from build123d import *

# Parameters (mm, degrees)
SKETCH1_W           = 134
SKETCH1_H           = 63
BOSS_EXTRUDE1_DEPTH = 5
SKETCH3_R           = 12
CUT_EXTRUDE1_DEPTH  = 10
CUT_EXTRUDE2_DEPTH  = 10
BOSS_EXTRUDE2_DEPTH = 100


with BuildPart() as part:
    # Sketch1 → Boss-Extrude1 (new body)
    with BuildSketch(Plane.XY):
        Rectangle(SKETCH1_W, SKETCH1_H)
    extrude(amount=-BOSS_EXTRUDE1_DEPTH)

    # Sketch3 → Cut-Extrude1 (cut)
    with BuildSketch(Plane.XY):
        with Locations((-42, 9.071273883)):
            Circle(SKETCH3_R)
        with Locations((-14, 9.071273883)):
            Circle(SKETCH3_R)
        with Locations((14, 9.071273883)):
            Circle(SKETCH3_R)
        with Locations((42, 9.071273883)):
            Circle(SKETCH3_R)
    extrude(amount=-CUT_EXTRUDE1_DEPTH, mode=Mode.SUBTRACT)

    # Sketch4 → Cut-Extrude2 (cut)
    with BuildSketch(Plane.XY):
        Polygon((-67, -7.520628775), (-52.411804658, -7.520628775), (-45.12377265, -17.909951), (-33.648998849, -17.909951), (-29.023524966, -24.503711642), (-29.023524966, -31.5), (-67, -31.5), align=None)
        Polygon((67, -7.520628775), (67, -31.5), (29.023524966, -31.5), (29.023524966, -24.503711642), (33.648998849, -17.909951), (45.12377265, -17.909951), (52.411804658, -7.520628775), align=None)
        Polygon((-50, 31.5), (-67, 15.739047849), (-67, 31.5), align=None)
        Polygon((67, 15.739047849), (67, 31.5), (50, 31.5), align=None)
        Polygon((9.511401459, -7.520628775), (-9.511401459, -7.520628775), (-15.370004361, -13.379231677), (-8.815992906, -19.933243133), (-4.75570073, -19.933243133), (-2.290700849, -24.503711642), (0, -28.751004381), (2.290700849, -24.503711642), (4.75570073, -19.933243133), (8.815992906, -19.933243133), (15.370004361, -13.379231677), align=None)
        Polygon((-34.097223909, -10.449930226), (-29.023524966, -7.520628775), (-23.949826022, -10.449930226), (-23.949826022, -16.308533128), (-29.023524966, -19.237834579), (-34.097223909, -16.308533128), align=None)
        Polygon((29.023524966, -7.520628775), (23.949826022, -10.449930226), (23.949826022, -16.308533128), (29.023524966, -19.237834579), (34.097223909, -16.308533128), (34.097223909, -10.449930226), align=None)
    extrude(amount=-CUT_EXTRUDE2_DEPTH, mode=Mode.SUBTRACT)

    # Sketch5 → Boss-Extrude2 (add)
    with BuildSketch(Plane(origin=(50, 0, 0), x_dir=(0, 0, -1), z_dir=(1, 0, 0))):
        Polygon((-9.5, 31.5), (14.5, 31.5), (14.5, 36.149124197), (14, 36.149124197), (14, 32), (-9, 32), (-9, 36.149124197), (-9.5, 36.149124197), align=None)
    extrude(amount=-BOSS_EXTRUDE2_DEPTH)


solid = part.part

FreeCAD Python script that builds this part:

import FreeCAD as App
import Part
import Sketcher

V = App.Vector
Q = App.Units.Quantity


def add_polygon(sketch, points):
    """Adds a closed chain of lines whose ends are joined by coincident constraints."""
    first, n = sketch.GeometryCount, len(points)
    for a, b in zip(points, points[1:] + points[:1]):
        sketch.addGeometry(Part.LineSegment(App.Vector(*a, 0), App.Vector(*b, 0)), False)
    for i in range(n):
        sketch.addConstraint(Sketcher.Constraint("Coincident", first + i, 2, first + (i + 1) % n, 1))

doc = App.newDocument("Part")
body = doc.addObject("PartDesign::Body", "Body")

sketch1 = body.newObject("Sketcher::SketchObject", "Sketch")
sketch1.AttachmentSupport = (doc.getObject("XY_Plane"), [""])
sketch1.MapMode = "FlatFace"
add_polygon(sketch1, [(-67, 32), (-67, -32), (67, -32), (67, 32)])
sketch1.addConstraint([
    Sketcher.Constraint("Vertical", 0),
    Sketcher.Constraint("Horizontal", 1),
    Sketcher.Constraint("Vertical", 2),
    Sketcher.Constraint("Horizontal", 3),
    Sketcher.Constraint("Symmetric", 0, 2, 2, 2, -1, 1),
    Sketcher.Constraint("DistanceX", 1, 1, 1, 2, 134.0),
    Sketcher.Constraint("DistanceY", 0, 2, 0, 1, 63.0),
])
pad1 = body.newObject("PartDesign::Pad", "Pad")
pad1.Profile = sketch1
pad1.Length = 5
pad1.Reversed = True

sketch2 = body.newObject("Sketcher::SketchObject", "Sketch001")
sketch2.AttachmentSupport = (doc.getObject("XY_Plane"), [""])
sketch2.MapMode = "FlatFace"
sketch2.addGeometry([
    Part.Circle(V(-42, 9, 0), V(0, 0, 1), 12),
    Part.Circle(V(-14, 9, 0), V(0, 0, 1), 12),
    Part.Circle(V(14, 9, 0), V(0, 0, 1), 12),
    Part.Circle(V(42, 9, 0), V(0, 0, 1), 12),
], False)
sketch2.addConstraint([
    Sketcher.Constraint("Equal", 0, 1),
    Sketcher.Constraint("Equal", 1, 2),
    Sketcher.Constraint("Equal", 2, 3),
    Sketcher.Constraint("Symmetric", 1, 3, 2, 3, -2),
    Sketcher.Constraint("Symmetric", 0, 3, 3, 3, -2),
    Sketcher.Constraint("Horizontal", 0, 3, 1, 3),
    Sketcher.Constraint("Diameter", 0, 24.0),
    Sketcher.Constraint("DistanceX", 0, 3, -1, 1, 42.0),
    Sketcher.Constraint("DistanceX", 1, 3, -1, 1, 14.0),
    Sketcher.Constraint("DistanceY", -1, 1, 0, 3, 9.071274),
])
pocket1 = body.newObject("PartDesign::Pocket", "Pocket")
pocket1.Profile = sketch2
pocket1.Length = 10

sketch3 = body.newObject("Sketcher::SketchObject", "Sketch002")
sketch3.AttachmentSupport = (doc.getObject("XY_Plane"), [""])
sketch3.MapMode = "FlatFace"
add_polygon(sketch3, [(-52.4, -7.5), (-67, -7.5), (-67, -31.5), (-29, -31.5), (-29, -24.5), (-33.6, -17.9), (-45.1, -17.9)])
add_polygon(sketch3, [(67, -31.5), (67, -7.5), (52.4, -7.5), (45.1, -17.9), (33.6, -17.9), (29, -24.5), (29, -31.5)])
add_polygon(sketch3, [(-67, 15.7), (-50, 31.5), (-67, 31.5)])
add_polygon(sketch3, [(67, 15.7), (67, 31.5), (50, 31.5)])
add_polygon(sketch3, [(9.5, -7.5), (-9.5, -7.5), (-15.4, -13.4), (-8.8, -19.9), (-4.8, -19.9), (-2.3, -24.5), (0, -28.8), (2.3, -24.5), (4.8, -19.9), (8.8, -19.9), (15.4, -13.4)])
add_polygon(sketch3, [(-29, -7.5), (-34.1, -10.4), (-34.1, -16.3), (-29, -19.2), (-23.9, -16.3), (-23.9, -10.4)])
add_polygon(sketch3, [(29, -7.5), (23.9, -10.4), (23.9, -16.3), (29, -19.2), (34.1, -16.3), (34.1, -10.4)])
sketch3.addConstraint([
    Sketcher.Constraint("Horizontal", 0),
    Sketcher.Constraint("Vertical", 1),
    Sketcher.Constraint("Horizontal", 2),
    Sketcher.Constraint("Vertical", 3),
    Sketcher.Constraint("Horizontal", 5),
    Sketcher.Constraint("Vertical", 7),
    Sketcher.Constraint("Horizontal", 8),
    Sketcher.Constraint("Horizontal", 10),
    Sketcher.Constraint("Vertical", 12),
    Sketcher.Constraint("Horizontal", 13),
    Sketcher.Constraint("Horizontal", 15),
    Sketcher.Constraint("Vertical", 16),
    Sketcher.Constraint("Vertical", 17),
    Sketcher.Constraint("Horizontal", 18),
    Sketcher.Constraint("Horizontal", 20),
    Sketcher.Constraint("Horizontal", 23),
    Sketcher.Constraint("Horizontal", 28),
    Sketcher.Constraint("Vertical", 32),
    Sketcher.Constraint("Vertical", 35),
    Sketcher.Constraint("Vertical", 38),
    Sketcher.Constraint("Vertical", 41),
    Sketcher.Constraint("Symmetric", 13, 2, 15, 2, -1, 1),
    Sketcher.Constraint("Symmetric", 1, 2, 17, 2, -1, 1),
    Sketcher.Constraint("Symmetric", 0, 2, 7, 2, -2),
    Sketcher.Constraint("Symmetric", 5, 2, 9, 2, -2),
    Sketcher.Constraint("Symmetric", 3, 2, 11, 2, -2),
    Sketcher.Constraint("Symmetric", 14, 2, 18, 2, -2),
    Sketcher.Constraint("Symmetric", 24, 2, 26, 2, -2),
    Sketcher.Constraint("Symmetric", 23, 2, 27, 2, -2),
    Sketcher.Constraint("Symmetric", 21, 2, 29, 2, -2),
    Sketcher.Constraint("Symmetric", 35, 2, 37, 2, -2),
    Sketcher.Constraint("Symmetric", 33, 2, 39, 2, -2),
    Sketcher.Constraint("Symmetric", 32, 2, 40, 2, -2),
    Sketcher.Constraint("Symmetric", 36, 2, 42, 2, -2),
    Sketcher.Constraint("PointOnObject", 25, 2, -2),
    Sketcher.Constraint("Parallel", 4, 6),
    Sketcher.Constraint("Parallel", 9, 11),
    Sketcher.Constraint("Perpendicular", 21, 22),
    Sketcher.Constraint("Parallel", 24, 25),
    Sketcher.Constraint("Perpendicular", 22, 29),
    Sketcher.Constraint("Perpendicular", 29, 30),
    Sketcher.Constraint("Parallel", 31, 34),
    Sketcher.Constraint("Parallel", 33, 36),
    Sketcher.Constraint("Parallel", 34, 37),
    Sketcher.Constraint("Parallel", 36, 39),
    Sketcher.Constraint("Parallel", 39, 42),
    Sketcher.Constraint("Horizontal", 16, 2, 19, 2),
    Sketcher.Constraint("Horizontal", 8, 2, 20, 2),
    Sketcher.Constraint("Horizontal", 11, 2, 24, 2),
    Sketcher.Constraint("Horizontal", 32, 2, 34, 2),
    Sketcher.Constraint("Horizontal", 31, 2, 35, 2),
    Sketcher.Constraint("Horizontal", 30, 2, 36, 2),
    Sketcher.Constraint("Vertical", 3, 2, 33, 2),
    Sketcher.Constraint("Equal", 0, 8),
    Sketcher.Constraint("Equal", 23, 28),
    Sketcher.Constraint("DistanceX", 15, 2, 15, 1, 17.0),
    Sketcher.Constraint("Angle", 31, Q("-150 deg")),
    Sketcher.Constraint("DistanceX", 0, 2, -1, 1, 67.0),
    Sketcher.Constraint("DistanceY", 13, 2, 17, 2, 63.0),
    Sketcher.Constraint("DistanceX", 4, 2, -1, 1, 33.648999),
    Sketcher.Constraint("DistanceY", 5, 2, 16, 2, 33.648999),
    Sketcher.Constraint("DistanceX", 23, 2, 24, 2, 2.465),
    Sketcher.Constraint("DistanceY", 1, 2, 1, 1, 23.979371),
    Sketcher.Constraint("DistanceY", 3, 1, 3, 2, 6.996288),
    Sketcher.Constraint("DistanceX", 20, 2, -1, 1, 9.511401),
    Sketcher.Constraint("DistanceX", 23, 2, -1, 1, 4.755701),
    Sketcher.Constraint("DistanceX", 31, 2, 3, 2, 5.073699),
    Sketcher.Constraint("DistanceY", 21, 2, 31, 2, 2.929301),
    Sketcher.Constraint("DistanceY", 34, 2, 21, 2, 2.929301),
    Sketcher.Constraint("Distance", 4, 8.054358),
    Sketcher.Constraint("Distance", 22, 9.268772),
    Sketcher.Constraint("DistanceX", 0, 2, 0, 1, 14.588195),
    Sketcher.Constraint("DistanceX", 2, 1, 2, 2, 37.976475),
])
pocket2 = body.newObject("PartDesign::Pocket", "Pocket001")
pocket2.Profile = sketch3
pocket2.Length = 10

sketch4 = body.newObject("Sketcher::SketchObject", "Sketch003")
sketch4.AttachmentSupport = (doc.getObject("YZ_Plane"), [""])
sketch4.MapMode = "FlatFace"
sketch4.AttachmentOffset = App.Placement(V(0, 0, 50), App.Rotation())
add_polygon(sketch4, [(31.5, 9.5), (31.5, -14.5), (36.1, -14.5), (36.1, -14), (32, -14), (32, 9), (36.1, 9), (36.1, 9.5)])
sketch4.addConstraint([
    Sketcher.Constraint("Vertical", 0),
    Sketcher.Constraint("Horizontal", 1),
    Sketcher.Constraint("Vertical", 2),
    Sketcher.Constraint("Horizontal", 3),
    Sketcher.Constraint("Vertical", 4),
    Sketcher.Constraint("Horizontal", 5),
    Sketcher.Constraint("Vertical", 6),
    Sketcher.Constraint("Horizontal", 7),
    Sketcher.Constraint("Vertical", 2, 2, 5, 2),
    Sketcher.Constraint("Equal", 2, 6),
    Sketcher.Constraint("DistanceY", 0, 2, 0, 1, 24.0),
    Sketcher.Constraint("DistanceY", 4, 1, 4, 2, 23.0),
    Sketcher.Constraint("DistanceY", 2, 2, -1, 1, 14.0),
    Sketcher.Constraint("DistanceX", -1, 1, 3, 2, 32.0),
    Sketcher.Constraint("DistanceX", -1, 1, 0, 2, 31.5),
    Sketcher.Constraint("DistanceX", 1, 1, 1, 2, 4.649124),
])
pad2 = body.newObject("PartDesign::Pad", "Pad001")
pad2.Profile = sketch4
pad2.Length = 100
pad2.Reversed = True

doc.recompute()
